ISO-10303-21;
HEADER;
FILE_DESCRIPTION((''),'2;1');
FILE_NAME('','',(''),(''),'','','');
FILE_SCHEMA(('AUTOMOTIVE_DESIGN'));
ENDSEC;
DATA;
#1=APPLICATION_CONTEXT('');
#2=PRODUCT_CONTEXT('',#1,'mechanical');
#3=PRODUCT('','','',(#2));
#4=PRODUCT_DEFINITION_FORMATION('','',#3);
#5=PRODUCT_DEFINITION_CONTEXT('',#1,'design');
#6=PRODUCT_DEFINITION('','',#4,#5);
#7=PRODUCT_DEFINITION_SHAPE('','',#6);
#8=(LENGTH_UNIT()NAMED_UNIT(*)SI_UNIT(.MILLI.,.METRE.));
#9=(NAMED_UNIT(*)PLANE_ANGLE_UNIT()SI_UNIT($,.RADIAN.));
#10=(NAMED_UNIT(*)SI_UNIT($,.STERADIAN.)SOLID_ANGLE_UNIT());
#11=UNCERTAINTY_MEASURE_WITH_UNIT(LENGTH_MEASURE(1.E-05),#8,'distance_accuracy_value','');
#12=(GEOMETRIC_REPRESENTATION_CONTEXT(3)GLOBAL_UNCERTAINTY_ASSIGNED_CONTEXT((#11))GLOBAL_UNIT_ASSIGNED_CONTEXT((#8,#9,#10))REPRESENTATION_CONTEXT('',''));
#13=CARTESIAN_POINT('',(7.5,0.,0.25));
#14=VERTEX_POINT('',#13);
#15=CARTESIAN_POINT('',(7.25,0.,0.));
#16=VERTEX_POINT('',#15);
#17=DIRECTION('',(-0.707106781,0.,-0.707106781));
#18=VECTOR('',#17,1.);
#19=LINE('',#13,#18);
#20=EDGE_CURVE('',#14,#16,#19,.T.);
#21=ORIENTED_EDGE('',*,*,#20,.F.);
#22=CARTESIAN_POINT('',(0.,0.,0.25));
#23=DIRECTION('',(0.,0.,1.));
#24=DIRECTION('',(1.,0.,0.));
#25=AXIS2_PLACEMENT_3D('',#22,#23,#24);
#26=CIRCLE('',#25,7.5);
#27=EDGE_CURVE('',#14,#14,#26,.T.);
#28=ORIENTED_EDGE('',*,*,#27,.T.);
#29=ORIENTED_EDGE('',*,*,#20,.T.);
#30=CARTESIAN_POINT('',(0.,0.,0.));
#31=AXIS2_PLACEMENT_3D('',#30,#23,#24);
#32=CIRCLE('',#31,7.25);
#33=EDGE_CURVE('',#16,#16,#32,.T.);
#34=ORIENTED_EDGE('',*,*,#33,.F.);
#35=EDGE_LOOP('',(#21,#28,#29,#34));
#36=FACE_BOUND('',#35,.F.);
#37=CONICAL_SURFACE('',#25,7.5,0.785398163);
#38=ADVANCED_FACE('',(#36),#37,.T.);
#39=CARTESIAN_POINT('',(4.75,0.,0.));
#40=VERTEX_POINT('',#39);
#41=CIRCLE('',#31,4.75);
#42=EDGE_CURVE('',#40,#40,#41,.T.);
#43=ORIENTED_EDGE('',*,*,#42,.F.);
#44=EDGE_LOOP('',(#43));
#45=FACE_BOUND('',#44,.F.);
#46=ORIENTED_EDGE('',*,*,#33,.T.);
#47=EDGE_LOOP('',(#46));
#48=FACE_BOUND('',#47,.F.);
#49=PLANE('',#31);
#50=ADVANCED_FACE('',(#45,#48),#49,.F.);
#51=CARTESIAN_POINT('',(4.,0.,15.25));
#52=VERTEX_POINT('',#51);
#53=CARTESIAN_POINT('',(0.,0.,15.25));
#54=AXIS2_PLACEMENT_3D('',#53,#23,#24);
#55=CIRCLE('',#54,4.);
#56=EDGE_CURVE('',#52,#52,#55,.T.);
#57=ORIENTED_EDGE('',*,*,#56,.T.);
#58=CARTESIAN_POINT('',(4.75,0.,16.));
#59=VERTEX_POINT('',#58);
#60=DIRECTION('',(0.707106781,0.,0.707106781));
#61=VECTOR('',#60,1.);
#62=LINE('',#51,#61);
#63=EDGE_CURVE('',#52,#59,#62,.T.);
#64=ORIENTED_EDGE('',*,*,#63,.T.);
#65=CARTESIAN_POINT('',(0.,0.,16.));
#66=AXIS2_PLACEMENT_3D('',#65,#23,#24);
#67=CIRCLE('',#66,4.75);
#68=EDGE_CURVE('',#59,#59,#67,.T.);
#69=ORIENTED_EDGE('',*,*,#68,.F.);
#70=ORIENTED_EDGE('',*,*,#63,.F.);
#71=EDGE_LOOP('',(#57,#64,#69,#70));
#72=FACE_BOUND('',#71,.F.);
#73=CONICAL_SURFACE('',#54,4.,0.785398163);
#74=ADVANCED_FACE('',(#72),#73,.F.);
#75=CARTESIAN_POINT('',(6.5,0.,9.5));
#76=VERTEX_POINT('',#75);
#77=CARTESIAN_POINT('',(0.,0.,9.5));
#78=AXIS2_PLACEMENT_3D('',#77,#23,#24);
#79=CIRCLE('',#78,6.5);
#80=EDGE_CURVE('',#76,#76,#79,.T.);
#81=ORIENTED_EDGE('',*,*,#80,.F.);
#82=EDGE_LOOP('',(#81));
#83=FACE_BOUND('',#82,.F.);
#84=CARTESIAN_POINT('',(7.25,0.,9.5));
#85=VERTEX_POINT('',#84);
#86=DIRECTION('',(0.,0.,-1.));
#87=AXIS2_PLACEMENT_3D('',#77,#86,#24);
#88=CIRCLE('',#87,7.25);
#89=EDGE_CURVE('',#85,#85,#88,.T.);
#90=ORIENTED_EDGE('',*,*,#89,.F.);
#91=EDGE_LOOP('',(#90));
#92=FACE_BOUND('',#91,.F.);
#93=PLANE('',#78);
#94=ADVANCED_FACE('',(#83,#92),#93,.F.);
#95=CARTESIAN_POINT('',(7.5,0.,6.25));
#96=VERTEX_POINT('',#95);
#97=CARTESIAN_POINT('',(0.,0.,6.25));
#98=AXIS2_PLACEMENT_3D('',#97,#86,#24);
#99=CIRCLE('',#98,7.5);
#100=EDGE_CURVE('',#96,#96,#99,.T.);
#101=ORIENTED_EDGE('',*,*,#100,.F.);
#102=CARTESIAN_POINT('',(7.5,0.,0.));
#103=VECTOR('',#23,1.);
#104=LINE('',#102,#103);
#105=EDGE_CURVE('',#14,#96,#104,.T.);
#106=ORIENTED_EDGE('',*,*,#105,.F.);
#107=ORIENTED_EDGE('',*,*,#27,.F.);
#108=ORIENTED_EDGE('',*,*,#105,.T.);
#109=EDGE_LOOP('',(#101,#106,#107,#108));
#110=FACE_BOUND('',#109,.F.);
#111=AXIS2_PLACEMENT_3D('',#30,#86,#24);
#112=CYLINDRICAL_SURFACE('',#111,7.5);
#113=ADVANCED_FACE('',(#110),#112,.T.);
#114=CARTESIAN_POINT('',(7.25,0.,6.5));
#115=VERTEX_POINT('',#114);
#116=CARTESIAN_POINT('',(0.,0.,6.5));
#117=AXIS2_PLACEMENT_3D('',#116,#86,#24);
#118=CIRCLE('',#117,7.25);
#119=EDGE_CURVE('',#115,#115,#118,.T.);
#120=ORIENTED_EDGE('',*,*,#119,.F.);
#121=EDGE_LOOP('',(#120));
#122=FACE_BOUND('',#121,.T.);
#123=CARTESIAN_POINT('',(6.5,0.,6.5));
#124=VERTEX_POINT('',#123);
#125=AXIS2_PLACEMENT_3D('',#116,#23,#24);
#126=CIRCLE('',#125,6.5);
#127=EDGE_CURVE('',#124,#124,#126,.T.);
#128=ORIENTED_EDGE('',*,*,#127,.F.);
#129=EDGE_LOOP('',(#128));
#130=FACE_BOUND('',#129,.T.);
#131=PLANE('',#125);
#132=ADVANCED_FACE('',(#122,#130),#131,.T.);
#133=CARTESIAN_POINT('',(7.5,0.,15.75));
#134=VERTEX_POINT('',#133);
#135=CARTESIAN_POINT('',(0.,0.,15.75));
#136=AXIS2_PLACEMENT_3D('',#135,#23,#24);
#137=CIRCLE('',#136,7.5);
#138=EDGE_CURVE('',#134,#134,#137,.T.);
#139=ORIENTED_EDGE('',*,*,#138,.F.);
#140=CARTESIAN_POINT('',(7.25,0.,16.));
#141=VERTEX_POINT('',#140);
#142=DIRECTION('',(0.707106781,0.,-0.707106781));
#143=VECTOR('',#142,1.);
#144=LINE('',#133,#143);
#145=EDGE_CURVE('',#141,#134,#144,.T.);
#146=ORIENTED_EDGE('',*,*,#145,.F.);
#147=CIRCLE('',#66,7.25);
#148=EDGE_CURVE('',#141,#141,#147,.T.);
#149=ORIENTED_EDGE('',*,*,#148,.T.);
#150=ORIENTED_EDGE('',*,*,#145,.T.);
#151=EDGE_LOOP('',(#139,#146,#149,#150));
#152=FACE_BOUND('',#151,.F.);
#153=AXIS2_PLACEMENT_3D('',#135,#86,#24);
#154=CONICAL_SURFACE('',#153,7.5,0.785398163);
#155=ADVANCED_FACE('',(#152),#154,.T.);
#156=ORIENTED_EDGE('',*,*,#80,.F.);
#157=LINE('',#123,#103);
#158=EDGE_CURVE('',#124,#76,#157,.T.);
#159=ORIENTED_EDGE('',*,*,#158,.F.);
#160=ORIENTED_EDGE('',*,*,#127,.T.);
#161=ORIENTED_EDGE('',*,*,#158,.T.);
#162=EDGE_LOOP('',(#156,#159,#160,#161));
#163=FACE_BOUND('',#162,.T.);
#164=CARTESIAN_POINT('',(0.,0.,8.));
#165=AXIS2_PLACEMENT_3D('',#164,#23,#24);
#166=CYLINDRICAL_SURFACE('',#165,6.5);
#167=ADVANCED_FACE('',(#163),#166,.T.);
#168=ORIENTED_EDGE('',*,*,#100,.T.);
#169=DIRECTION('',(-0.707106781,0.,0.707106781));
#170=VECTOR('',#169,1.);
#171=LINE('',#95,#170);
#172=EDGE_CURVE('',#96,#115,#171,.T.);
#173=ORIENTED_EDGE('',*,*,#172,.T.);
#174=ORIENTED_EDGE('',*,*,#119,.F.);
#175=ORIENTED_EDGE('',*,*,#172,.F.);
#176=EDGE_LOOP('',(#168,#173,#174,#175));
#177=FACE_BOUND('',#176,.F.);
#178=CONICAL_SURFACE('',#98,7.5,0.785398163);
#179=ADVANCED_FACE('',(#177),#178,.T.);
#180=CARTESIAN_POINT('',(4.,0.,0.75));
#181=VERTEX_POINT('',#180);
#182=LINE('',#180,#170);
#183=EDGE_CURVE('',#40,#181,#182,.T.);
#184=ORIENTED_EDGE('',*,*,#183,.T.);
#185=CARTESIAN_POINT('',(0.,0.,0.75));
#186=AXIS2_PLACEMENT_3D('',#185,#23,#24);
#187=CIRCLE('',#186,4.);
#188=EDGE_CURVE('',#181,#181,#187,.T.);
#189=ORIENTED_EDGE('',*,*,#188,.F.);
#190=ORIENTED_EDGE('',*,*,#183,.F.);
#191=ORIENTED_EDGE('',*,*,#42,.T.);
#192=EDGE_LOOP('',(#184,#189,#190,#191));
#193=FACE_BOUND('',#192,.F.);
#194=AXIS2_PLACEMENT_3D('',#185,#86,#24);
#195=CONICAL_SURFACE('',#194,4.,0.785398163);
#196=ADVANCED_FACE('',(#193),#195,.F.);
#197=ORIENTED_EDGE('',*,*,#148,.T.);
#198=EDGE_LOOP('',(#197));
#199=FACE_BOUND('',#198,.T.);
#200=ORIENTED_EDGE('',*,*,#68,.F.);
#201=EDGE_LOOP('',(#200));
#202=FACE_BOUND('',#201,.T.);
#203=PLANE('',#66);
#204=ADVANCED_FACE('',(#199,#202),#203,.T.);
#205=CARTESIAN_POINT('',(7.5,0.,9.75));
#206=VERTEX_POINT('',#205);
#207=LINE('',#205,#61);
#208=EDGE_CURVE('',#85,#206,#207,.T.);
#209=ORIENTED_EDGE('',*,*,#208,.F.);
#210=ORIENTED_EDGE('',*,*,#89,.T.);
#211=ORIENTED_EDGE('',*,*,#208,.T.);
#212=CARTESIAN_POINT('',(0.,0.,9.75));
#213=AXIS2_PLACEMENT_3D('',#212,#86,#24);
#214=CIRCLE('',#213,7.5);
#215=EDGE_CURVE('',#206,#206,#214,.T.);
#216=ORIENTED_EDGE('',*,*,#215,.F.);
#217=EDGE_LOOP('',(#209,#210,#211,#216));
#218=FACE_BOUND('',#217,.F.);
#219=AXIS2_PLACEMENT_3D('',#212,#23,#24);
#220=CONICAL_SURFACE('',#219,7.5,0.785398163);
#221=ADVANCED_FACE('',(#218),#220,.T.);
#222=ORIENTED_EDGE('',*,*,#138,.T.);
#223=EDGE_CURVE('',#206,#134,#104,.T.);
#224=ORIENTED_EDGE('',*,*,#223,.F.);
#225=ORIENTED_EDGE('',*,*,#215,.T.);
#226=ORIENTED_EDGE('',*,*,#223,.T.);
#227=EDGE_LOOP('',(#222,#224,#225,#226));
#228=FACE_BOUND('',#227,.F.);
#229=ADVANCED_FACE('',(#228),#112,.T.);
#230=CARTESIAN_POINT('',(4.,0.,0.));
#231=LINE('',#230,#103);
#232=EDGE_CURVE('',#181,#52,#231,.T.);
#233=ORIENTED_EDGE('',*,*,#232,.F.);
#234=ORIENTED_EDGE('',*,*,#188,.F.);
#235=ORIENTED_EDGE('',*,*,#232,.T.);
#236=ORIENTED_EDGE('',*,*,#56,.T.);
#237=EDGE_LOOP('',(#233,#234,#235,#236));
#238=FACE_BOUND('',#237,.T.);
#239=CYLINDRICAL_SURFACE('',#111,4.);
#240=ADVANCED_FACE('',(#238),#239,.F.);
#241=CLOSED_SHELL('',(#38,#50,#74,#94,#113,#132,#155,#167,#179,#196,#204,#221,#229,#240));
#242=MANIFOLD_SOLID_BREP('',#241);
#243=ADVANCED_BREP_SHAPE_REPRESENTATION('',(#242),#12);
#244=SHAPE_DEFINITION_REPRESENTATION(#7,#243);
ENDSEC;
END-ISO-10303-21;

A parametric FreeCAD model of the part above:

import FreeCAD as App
import Part
import Sketcher


def edges_at(feature, points):
    """Names of the edges that pass closest to the given points."""
    edges = feature.Shape.Edges
    near = lambda p: min(range(len(edges)), key=lambda i: edges[i].distToShape(Part.Vertex(*p))[0])
    return sorted({f"Edge{near(p) + 1}" for p in points})

doc = App.newDocument("Part")
body = doc.addObject("PartDesign::Body", "Body")

sketch1 = body.newObject("Sketcher::SketchObject", "Sketch")
sketch1.AttachmentSupport = (doc.getObject("XY_Plane"), [""])
sketch1.MapMode = "FlatFace"
sketch1.addGeometry(Part.Circle(App.Vector(0, 0, 0), App.Vector(0, 0, 1), 7.5), False)
sketch1.addGeometry(Part.Circle(App.Vector(0, 0, 0), App.Vector(0, 0, 1), 4), False)
sketch1.addConstraint(Sketcher.Constraint("Coincident", 0, 3, -1, 1))
sketch1.addConstraint(Sketcher.Constraint("Coincident", 1, 3, -1, 1))
sketch1.addConstraint(Sketcher.Constraint("Diameter", 0, 15.0))
sketch1.addConstraint(Sketcher.Constraint("Diameter", 1, 8.0))
pad1 = body.newObject("PartDesign::Pad", "Pad")
pad1.Profile = sketch1
pad1.Length = 16

sketch2 = body.newObject("Sketcher::SketchObject", "Sketch001")
sketch2.AttachmentSupport = (doc.getObject("XY_Plane"), [""])
sketch2.MapMode = "FlatFace"
sketch2.AttachmentOffset = App.Placement(App.Vector(0, 0, 8), App.Rotation())
sketch2.addGeometry(Part.Circle(App.Vector(0, 0, 0), App.Vector(0, 0, 1), 8), False)
sketch2.addGeometry(Part.Circle(App.Vector(0, 0, 0), App.Vector(0, 0, 1), 6.5), False)
sketch2.addConstraint(Sketcher.Constraint("Coincident", 0, 3, -1, 1))
sketch2.addConstraint(Sketcher.Constraint("Coincident", 1, 3, -1, 1))
sketch2.addConstraint(Sketcher.Constraint("Diameter", 0, 16.0))
sketch2.addConstraint(Sketcher.Constraint("Diameter", 1, 13.0))
pocket1 = body.newObject("PartDesign::Pocket", "Pocket")
pocket1.Profile = sketch2
pocket1.Length = 3
pocket1.Midplane = True
doc.recompute()

chamfer = body.newObject("PartDesign::Chamfer", "Chamfer")
chamfer.Base = (pocket1, edges_at(pocket1, [(-7.5, 0, 16), (-7.5, 0, 0)]))
chamfer.Size = 0.25
doc.recompute()

chamfer2 = body.newObject("PartDesign::Chamfer", "Chamfer001")
chamfer2.Base = (chamfer, edges_at(chamfer, [(-4, 0, 16), (-4, 0, 0)]))
chamfer2.Size = 0.75
doc.recompute()

chamfer3 = body.newObject("PartDesign::Chamfer", "Chamfer002")
chamfer3.Base = (chamfer2, edges_at(chamfer2, [(-7.5, 0, 9.5), (-7.5, 0, 6.5)]))
chamfer3.Size = 0.25

doc.recompute()
